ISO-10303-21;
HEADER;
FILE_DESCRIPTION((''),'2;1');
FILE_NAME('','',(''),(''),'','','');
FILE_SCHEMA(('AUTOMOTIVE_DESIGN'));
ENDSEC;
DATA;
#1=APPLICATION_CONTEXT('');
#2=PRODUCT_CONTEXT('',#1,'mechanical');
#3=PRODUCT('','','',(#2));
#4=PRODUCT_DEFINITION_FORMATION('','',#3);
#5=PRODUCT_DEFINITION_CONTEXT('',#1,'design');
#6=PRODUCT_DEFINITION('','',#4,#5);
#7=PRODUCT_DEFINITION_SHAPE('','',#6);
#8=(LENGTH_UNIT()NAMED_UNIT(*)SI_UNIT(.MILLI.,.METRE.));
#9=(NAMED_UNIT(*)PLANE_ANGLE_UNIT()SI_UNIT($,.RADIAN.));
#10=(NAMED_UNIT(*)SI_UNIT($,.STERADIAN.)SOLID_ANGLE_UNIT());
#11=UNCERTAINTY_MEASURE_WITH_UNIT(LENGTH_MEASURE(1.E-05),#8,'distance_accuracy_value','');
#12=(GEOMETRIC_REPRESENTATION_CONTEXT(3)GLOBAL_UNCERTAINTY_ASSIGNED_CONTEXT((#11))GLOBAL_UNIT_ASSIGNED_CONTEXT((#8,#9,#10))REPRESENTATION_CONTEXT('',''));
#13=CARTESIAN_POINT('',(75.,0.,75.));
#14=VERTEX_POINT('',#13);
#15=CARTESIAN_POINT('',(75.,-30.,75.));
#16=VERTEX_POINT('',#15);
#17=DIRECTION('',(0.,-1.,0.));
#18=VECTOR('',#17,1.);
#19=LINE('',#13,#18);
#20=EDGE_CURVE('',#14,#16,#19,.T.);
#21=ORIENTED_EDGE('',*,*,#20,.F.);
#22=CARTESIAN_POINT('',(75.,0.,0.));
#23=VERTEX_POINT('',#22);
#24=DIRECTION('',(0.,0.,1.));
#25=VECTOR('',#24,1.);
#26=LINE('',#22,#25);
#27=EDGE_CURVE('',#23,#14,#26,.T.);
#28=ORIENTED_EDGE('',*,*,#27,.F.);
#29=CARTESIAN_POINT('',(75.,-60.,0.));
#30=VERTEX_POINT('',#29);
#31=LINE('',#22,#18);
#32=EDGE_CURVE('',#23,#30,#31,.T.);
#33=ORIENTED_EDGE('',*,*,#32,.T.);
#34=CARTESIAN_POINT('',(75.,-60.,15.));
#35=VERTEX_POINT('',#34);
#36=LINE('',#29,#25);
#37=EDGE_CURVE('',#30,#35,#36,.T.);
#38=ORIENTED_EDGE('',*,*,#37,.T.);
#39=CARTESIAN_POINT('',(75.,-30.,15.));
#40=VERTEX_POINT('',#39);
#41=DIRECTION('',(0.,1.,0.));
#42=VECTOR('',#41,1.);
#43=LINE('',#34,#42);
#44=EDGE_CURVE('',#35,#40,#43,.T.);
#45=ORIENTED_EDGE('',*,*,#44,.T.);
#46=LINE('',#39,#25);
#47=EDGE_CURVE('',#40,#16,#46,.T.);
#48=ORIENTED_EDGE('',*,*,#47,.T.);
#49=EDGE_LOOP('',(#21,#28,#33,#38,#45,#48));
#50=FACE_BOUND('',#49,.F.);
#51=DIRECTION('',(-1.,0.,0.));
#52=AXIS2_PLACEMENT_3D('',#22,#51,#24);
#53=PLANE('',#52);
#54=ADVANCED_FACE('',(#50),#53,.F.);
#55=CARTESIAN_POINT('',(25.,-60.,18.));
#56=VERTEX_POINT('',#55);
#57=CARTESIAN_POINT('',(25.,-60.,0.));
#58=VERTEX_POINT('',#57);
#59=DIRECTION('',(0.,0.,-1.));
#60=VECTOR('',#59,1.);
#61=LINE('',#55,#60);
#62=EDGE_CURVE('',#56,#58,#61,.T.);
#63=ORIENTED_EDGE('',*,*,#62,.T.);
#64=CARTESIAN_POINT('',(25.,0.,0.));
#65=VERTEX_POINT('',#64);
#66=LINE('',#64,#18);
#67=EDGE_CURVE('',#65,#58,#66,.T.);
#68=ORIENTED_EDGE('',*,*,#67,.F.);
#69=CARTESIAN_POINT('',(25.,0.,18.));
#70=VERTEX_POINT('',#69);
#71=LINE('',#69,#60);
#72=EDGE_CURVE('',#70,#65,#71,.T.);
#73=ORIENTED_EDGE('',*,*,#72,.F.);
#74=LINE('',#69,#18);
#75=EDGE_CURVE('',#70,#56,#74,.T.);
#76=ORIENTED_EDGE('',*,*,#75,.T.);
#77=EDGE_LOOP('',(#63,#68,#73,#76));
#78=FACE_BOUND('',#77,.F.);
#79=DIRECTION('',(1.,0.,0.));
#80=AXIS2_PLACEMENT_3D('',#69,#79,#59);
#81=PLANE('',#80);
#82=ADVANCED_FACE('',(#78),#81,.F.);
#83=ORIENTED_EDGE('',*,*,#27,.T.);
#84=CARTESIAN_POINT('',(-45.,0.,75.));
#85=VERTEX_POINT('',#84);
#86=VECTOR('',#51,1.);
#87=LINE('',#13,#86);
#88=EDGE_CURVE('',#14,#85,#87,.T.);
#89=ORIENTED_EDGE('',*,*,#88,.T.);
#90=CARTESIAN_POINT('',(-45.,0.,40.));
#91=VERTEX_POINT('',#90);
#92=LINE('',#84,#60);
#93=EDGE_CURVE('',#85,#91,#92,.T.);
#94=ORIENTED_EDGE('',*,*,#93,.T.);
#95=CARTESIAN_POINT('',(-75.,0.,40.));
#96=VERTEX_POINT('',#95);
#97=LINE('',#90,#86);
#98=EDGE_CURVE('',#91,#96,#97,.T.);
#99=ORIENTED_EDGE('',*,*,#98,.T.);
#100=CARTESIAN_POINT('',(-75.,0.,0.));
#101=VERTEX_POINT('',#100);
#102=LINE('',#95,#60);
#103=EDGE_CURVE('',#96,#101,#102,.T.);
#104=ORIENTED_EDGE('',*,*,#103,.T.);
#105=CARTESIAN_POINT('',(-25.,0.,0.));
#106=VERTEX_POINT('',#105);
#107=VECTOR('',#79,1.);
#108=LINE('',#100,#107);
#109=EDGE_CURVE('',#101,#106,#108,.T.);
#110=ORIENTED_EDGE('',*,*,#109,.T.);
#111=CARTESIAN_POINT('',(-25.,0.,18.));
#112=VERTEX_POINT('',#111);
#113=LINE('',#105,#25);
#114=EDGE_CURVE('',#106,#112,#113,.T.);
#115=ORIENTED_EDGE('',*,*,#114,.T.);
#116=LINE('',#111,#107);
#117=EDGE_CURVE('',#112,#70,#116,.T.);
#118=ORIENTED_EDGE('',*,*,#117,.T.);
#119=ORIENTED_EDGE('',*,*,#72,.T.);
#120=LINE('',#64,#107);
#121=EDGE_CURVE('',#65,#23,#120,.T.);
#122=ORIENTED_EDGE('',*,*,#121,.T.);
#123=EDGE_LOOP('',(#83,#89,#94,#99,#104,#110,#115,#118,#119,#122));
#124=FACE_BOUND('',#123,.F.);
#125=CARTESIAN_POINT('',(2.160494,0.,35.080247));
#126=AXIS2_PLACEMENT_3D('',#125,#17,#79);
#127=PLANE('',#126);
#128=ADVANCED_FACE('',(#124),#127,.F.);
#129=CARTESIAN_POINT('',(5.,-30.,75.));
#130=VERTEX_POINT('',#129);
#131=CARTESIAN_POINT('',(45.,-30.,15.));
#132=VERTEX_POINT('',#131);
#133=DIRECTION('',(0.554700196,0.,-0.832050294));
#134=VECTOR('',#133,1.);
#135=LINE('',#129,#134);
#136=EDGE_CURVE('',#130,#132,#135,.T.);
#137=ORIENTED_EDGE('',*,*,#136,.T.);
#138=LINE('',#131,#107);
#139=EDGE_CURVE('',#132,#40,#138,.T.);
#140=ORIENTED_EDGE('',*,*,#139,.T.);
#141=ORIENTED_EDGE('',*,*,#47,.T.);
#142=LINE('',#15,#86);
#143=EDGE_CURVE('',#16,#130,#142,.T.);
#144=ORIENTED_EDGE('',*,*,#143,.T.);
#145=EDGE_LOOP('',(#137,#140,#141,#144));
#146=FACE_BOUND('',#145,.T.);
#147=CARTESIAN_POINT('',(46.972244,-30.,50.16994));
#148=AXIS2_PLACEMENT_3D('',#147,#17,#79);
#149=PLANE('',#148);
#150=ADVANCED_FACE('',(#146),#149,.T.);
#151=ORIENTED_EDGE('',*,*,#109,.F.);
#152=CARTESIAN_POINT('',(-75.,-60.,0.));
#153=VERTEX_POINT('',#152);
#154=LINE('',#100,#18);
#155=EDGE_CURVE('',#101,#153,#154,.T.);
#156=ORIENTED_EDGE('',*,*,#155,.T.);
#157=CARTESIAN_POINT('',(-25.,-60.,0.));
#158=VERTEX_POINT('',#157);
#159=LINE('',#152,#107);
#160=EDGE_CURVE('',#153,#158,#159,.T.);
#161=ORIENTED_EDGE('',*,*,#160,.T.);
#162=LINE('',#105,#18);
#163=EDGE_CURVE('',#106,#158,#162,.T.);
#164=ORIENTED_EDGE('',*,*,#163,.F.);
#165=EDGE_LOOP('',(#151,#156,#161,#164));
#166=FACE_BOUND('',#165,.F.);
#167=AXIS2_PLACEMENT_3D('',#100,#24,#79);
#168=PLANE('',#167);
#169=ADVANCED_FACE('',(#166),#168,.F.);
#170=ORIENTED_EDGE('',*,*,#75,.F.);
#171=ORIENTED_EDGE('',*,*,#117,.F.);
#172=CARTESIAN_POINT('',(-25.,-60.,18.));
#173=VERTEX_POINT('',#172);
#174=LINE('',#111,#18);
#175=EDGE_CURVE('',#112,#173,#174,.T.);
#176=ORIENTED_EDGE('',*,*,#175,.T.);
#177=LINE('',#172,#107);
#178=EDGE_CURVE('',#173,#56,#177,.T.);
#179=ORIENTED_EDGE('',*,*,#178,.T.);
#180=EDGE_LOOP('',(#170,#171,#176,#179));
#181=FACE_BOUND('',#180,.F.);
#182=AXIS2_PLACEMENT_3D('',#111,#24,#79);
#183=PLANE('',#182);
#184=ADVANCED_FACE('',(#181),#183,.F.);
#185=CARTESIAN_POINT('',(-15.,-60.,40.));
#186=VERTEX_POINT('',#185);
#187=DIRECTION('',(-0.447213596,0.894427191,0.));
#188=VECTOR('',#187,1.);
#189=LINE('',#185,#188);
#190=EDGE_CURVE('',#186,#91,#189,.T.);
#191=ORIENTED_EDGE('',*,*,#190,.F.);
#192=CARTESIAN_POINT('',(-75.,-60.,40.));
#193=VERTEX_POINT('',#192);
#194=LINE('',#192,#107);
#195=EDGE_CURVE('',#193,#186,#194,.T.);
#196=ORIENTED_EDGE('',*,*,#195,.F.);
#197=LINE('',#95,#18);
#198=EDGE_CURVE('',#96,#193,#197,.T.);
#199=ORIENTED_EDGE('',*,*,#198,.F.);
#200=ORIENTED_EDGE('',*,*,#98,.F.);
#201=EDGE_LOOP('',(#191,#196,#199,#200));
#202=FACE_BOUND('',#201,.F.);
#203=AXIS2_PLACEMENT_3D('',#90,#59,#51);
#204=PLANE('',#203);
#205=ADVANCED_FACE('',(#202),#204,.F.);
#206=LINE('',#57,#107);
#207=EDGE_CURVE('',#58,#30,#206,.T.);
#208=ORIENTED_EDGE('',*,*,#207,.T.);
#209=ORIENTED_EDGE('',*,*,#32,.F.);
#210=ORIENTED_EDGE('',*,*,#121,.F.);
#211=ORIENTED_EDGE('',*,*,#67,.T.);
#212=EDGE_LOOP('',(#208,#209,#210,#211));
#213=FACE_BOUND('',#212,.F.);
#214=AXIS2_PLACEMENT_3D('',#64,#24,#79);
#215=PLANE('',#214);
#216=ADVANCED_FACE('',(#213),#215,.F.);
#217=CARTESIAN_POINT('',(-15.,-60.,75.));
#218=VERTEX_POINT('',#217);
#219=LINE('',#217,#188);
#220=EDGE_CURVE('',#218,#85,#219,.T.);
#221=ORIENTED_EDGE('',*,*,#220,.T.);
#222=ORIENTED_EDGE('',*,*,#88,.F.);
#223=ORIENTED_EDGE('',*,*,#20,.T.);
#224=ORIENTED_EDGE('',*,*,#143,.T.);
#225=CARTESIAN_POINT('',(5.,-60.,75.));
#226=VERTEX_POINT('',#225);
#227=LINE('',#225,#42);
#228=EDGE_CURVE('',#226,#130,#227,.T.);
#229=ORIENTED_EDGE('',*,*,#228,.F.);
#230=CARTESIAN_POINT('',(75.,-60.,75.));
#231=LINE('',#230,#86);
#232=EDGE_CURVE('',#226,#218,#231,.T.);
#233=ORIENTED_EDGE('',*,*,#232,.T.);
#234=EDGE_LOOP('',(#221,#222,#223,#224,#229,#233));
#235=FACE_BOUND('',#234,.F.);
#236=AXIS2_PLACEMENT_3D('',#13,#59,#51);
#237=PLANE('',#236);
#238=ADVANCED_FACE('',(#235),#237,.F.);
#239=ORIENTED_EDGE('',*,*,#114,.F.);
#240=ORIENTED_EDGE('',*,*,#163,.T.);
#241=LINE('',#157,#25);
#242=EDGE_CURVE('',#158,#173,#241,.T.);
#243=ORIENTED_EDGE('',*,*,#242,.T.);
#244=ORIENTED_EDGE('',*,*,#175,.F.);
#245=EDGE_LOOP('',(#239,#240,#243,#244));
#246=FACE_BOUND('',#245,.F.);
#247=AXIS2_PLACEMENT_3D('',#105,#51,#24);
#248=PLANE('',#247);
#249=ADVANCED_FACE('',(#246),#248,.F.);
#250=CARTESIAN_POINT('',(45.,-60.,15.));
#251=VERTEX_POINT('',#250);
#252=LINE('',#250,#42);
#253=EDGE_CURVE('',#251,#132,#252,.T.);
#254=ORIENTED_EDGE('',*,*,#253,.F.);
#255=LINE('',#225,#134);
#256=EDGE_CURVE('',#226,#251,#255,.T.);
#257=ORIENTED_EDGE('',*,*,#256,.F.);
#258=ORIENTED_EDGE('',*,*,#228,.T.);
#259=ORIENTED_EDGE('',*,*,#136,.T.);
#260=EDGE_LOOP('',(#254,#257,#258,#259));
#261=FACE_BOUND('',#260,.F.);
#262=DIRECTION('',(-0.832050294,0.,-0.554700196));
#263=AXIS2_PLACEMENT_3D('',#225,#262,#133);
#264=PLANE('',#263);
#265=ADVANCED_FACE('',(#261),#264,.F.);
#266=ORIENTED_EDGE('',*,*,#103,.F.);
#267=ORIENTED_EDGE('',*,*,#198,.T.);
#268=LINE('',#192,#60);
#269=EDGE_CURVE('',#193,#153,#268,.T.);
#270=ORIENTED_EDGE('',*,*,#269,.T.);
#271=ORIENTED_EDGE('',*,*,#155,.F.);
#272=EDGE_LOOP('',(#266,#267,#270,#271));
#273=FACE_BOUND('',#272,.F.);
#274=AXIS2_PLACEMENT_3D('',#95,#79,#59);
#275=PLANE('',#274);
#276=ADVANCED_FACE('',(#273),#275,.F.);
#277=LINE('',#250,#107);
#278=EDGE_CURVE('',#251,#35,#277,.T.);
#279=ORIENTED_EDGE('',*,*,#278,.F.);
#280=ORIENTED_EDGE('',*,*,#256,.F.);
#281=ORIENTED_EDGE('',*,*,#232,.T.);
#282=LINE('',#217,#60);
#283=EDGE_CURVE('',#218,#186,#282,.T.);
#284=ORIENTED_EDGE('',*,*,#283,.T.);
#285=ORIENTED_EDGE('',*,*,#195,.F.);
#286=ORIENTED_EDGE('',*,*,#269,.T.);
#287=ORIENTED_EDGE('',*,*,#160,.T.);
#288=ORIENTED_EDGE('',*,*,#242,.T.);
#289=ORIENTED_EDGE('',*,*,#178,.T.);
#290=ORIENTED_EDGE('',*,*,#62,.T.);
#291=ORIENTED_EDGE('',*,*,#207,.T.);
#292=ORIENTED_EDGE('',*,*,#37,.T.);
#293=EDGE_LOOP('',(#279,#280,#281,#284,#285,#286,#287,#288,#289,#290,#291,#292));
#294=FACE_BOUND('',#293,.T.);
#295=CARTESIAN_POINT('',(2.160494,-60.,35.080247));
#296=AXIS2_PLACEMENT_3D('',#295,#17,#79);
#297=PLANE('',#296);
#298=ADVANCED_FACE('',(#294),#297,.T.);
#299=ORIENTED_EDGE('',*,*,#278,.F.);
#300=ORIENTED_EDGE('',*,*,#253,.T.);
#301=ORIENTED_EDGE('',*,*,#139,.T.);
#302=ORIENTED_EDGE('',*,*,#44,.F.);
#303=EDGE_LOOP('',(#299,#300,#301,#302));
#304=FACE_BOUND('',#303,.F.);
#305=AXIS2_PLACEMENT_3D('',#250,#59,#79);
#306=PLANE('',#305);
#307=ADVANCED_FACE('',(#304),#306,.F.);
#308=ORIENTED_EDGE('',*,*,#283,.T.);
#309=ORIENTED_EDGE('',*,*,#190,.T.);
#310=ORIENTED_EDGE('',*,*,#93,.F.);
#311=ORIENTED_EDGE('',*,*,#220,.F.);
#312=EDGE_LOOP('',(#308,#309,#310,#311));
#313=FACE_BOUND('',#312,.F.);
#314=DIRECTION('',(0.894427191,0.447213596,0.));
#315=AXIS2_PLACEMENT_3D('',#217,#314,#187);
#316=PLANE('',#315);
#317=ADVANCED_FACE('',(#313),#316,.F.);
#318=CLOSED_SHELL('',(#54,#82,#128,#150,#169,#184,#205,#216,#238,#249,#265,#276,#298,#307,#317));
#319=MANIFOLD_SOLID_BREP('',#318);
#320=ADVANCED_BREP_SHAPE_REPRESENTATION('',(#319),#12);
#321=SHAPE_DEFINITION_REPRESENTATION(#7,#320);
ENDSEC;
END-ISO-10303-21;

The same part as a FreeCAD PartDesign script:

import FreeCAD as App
import Part
import Sketcher
Q = App.Units.Quantity

doc = App.newDocument("Part")
body = doc.addObject("PartDesign::Body", "Body")

sketch1 = body.newObject("Sketcher::SketchObject", "Sketch")
sketch1.AttachmentSupport = (doc.getObject("XZ_Plane"), [""])
sketch1.MapMode = "FlatFace"
sketch1.addGeometry(Part.LineSegment(App.Vector(-75, 40, 0), App.Vector(-75, 0, 0)), False)
sketch1.addGeometry(Part.LineSegment(App.Vector(-75, 0, 0), App.Vector(-25, 0, 0)), False)
sketch1.addGeometry(Part.LineSegment(App.Vector(-25, 0, 0), App.Vector(-25, 18, 0)), False)
sketch1.addGeometry(Part.LineSegment(App.Vector(-25, 18, 0), App.Vector(25, 18, 0)), False)
sketch1.addGeometry(Part.LineSegment(App.Vector(25, 18, 0), App.Vector(25, 0, 0)), False)
sketch1.addGeometry(Part.LineSegment(App.Vector(25, 0, 0), App.Vector(75, 0, 0)), False)
sketch1.addGeometry(Part.LineSegment(App.Vector(75, 0, 0), App.Vector(75, 75, 0)), False)
sketch1.addGeometry(Part.LineSegment(App.Vector(75, 75, 0), App.Vector(-45, 75, 0)), False)
sketch1.addGeometry(Part.LineSegment(App.Vector(-45, 75, 0), App.Vector(-45, 40, 0)), False)
sketch1.addGeometry(Part.LineSegment(App.Vector(-45, 40, 0), App.Vector(-75, 40, 0)), False)
sketch1.addConstraint(Sketcher.Constraint("Coincident", 0, 2, 1, 1))
sketch1.addConstraint(Sketcher.Constraint("Coincident", 1, 2, 2, 1))
sketch1.addConstraint(Sketcher.Constraint("Coincident", 2, 2, 3, 1))
sketch1.addConstraint(Sketcher.Constraint("Coincident", 3, 2, 4, 1))
sketch1.addConstraint(Sketcher.Constraint("Coincident", 4, 2, 5, 1))
sketch1.addConstraint(Sketcher.Constraint("Coincident", 5, 2, 6, 1))
sketch1.addConstraint(Sketcher.Constraint("Coincident", 6, 2, 7, 1))
sketch1.addConstraint(Sketcher.Constraint("Coincident", 7, 2, 8, 1))
sketch1.addConstraint(Sketcher.Constraint("Coincident", 8, 2, 9, 1))
sketch1.addConstraint(Sketcher.Constraint("Coincident", 9, 2, 0, 1))
sketch1.addConstraint(Sketcher.Constraint("Vertical", 0))
sketch1.addConstraint(Sketcher.Constraint("Horizontal", 1))
sketch1.addConstraint(Sketcher.Constraint("Vertical", 2))
sketch1.addConstraint(Sketcher.Constraint("Horizontal", 3))
sketch1.addConstraint(Sketcher.Constraint("Vertical", 4))
sketch1.addConstraint(Sketcher.Constraint("Horizontal", 5))
sketch1.addConstraint(Sketcher.Constraint("Vertical", 6))
sketch1.addConstraint(Sketcher.Constraint("Horizontal", 7))
sketch1.addConstraint(Sketcher.Constraint("Vertical", 8))
sketch1.addConstraint(Sketcher.Constraint("Horizontal", 9))
sketch1.addConstraint(Sketcher.Constraint("Symmetric", 1, 2, 4, 2, -1, 1))
sketch1.addConstraint(Sketcher.Constraint("Symmetric", 0, 2, 5, 2, -2))
sketch1.addConstraint(Sketcher.Constraint("Equal", 1, 3))
sketch1.addConstraint(Sketcher.Constraint("DistanceX", 1, 1, 1, 2, Q("50 mm")))
sketch1.addConstraint(Sketcher.Constraint("DistanceX", 7, 2, 7, 1, Q("120 mm")))
sketch1.addConstraint(Sketcher.Constraint("DistanceY", 0, 2, 0, 1, Q("40 mm")))
sketch1.addConstraint(Sketcher.Constraint("DistanceY", 2, 1, 2, 2, Q("18 mm")))
sketch1.addConstraint(Sketcher.Constraint("DistanceY", 6, 1, 6, 2, Q("75 mm")))
pad1 = body.newObject("PartDesign::Pad", "Pad")
pad1.Profile = sketch1
pad1.Length = 60

sketch2 = body.newObject("Sketcher::SketchObject", "Sketch001")
sketch2.AttachmentSupport = (doc.getObject("XZ_Plane"), [""])
sketch2.MapMode = "FlatFace"
sketch2.AttachmentOffset = App.Placement(App.Vector(0, 0, 60), App.Rotation())
sketch2.addGeometry(Part.LineSegment(App.Vector(75, 15, 0), App.Vector(75, 75, 0)), False)
sketch2.addGeometry(Part.LineSegment(App.Vector(75, 75, 0), App.Vector(5, 75, 0)), False)
sketch2.addGeometry(Part.LineSegment(App.Vector(5, 75, 0), App.Vector(45, 15, 0)), False)
sketch2.addGeometry(Part.LineSegment(App.Vector(45, 15, 0), App.Vector(75, 15, 0)), False)
sketch2.addConstraint(Sketcher.Constraint("Coincident", 0, 2, 1, 1))
sketch2.addConstraint(Sketcher.Constraint("Coincident", 1, 2, 2, 1))
sketch2.addConstraint(Sketcher.Constraint("Coincident", 2, 2, 3, 1))
sketch2.addConstraint(Sketcher.Constraint("Coincident", 3, 2, 0, 1))
sketch2.addConstraint(Sketcher.Constraint("Vertical", 0))
sketch2.addConstraint(Sketcher.Constraint("Horizontal", 1))
sketch2.addConstraint(Sketcher.Constraint("Horizontal", 3))
sketch2.addConstraint(Sketcher.Constraint("DistanceX", 1, 2, 1, 1, Q("70 mm")))
sketch2.addConstraint(Sketcher.Constraint("DistanceX", 3, 1, 3, 2, Q("30 mm")))
sketch2.addConstraint(Sketcher.Constraint("DistanceY", 0, 1, 0, 2, Q("60 mm")))
sketch2.addConstraint(Sketcher.Constraint("DistanceX", -1, 1, 0, 2, Q("75 mm")))
sketch2.addConstraint(Sketcher.Constraint("DistanceY", -1, 1, 0, 2, Q("75 mm")))
pocket1 = body.newObject("PartDesign::Pocket", "Pocket")
pocket1.Profile = sketch2
pocket1.Length = 30

sketch3 = body.newObject("Sketcher::SketchObject", "Sketch002")
sketch3.AttachmentSupport = (doc.getObject("XY_Plane"), [""])
sketch3.MapMode = "FlatFace"
sketch3.AttachmentOffset = App.Placement(App.Vector(0, 0, 75), App.Rotation())
sketch3.addGeometry(Part.LineSegment(App.Vector(-15, -60, 0), App.Vector(-45, 0, 0)), False)
sketch3.addGeometry(Part.LineSegment(App.Vector(-45, 0, 0), App.Vector(-45, -60, 0)), False)
sketch3.addGeometry(Part.LineSegment(App.Vector(-45, -60, 0), App.Vector(-15, -60, 0)), False)
sketch3.addConstraint(Sketcher.Constraint("Coincident", 0, 2, 1, 1))
sketch3.addConstraint(Sketcher.Constraint("Coincident", 1, 2, 2, 1))
sketch3.addConstraint(Sketcher.Constraint("Coincident", 2, 2, 0, 1))
sketch3.addConstraint(Sketcher.Constraint("Vertical", 1))
sketch3.addConstraint(Sketcher.Constraint("Horizontal", 2))
sketch3.addConstraint(Sketcher.Constraint("PointOnObject", 0, 2, -1))
sketch3.addConstraint(Sketcher.Constraint("DistanceX", 2, 1, 2, 2, Q("30 mm")))
sketch3.addConstraint(Sketcher.Constraint("DistanceY", 1, 2, 1, 1, Q("60 mm")))
sketch3.addConstraint(Sketcher.Constraint("DistanceX", 0, 2, -1, 1, Q("45 mm")))
pocket2 = body.newObject("PartDesign::Pocket", "Pocket001")
pocket2.Profile = sketch3
pocket2.Length = 35

doc.recompute()
